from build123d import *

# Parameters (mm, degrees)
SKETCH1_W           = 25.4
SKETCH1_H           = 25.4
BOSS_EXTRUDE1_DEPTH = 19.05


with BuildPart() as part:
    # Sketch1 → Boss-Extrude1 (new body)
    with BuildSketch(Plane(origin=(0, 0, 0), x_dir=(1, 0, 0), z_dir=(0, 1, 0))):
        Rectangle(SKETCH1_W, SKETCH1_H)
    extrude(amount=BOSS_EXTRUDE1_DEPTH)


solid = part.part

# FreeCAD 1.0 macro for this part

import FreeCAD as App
import Part
import Sketcher

V = App.Vector
Q = App.Units.Quantity

doc = App.newDocument("Part")
params = doc.addObject("Spreadsheet::Sheet", "Params")
for row, (alias, value) in enumerate([
    ("sketch1_width", "1 in"),
    ("pad1_length", "0.75 in"),
], start=1):
    params.set(f"A{row}", alias)
    params.set(f"B{row}", "=" + value)
    params.setAlias(f"B{row}", alias)

body = doc.addObject("PartDesign::Body", "Body")

sketch1 = body.newObject("Sketcher::SketchObject", "Sketch")
sketch1.AttachmentSupport = (doc.getObject("XZ_Plane"), [""])
sketch1.MapMode = "FlatFace"
sketch1.addGeometry([
    Part.LineSegment(V(-13, -13, 0), V(-13, 13, 0)),
    Part.LineSegment(V(-13, 13, 0), V(13, 13, 0)),
    Part.LineSegment(V(13, 13, 0), V(13, -13, 0)),
    Part.LineSegment(V(13, -13, 0), V(-13, -13, 0)),
], False)
sketch1.addConstraint([
    Sketcher.Constraint("Coincident", 0, 2, 1, 1),
    Sketcher.Constraint("Coincident", 1, 2, 2, 1),
    Sketcher.Constraint("Coincident", 2, 2, 3, 1),
    Sketcher.Constraint("Coincident", 3, 2, 0, 1),
    Sketcher.Constraint("Vertical", 0),
    Sketcher.Constraint("Horizontal", 1),
    Sketcher.Constraint("Vertical", 2),
    Sketcher.Constraint("Horizontal", 3),
    Sketcher.Constraint("Symmetric", 0, 2, 2, 2, -1, 1),
    Sketcher.Constraint("Equal", 3, 0),
    Sketcher.Constraint("DistanceX", 1, 1, 1, 2, Q("1 in")),
])
sketch1.setExpression("Constraints[10]", "Params.sketch1_width")
pad1 = body.newObject("PartDesign::Pad", "Pad")
pad1.Profile = sketch1
pad1.setExpression("Length", "Params.pad1_length")
pad1.Reversed = True

doc.recompute()
